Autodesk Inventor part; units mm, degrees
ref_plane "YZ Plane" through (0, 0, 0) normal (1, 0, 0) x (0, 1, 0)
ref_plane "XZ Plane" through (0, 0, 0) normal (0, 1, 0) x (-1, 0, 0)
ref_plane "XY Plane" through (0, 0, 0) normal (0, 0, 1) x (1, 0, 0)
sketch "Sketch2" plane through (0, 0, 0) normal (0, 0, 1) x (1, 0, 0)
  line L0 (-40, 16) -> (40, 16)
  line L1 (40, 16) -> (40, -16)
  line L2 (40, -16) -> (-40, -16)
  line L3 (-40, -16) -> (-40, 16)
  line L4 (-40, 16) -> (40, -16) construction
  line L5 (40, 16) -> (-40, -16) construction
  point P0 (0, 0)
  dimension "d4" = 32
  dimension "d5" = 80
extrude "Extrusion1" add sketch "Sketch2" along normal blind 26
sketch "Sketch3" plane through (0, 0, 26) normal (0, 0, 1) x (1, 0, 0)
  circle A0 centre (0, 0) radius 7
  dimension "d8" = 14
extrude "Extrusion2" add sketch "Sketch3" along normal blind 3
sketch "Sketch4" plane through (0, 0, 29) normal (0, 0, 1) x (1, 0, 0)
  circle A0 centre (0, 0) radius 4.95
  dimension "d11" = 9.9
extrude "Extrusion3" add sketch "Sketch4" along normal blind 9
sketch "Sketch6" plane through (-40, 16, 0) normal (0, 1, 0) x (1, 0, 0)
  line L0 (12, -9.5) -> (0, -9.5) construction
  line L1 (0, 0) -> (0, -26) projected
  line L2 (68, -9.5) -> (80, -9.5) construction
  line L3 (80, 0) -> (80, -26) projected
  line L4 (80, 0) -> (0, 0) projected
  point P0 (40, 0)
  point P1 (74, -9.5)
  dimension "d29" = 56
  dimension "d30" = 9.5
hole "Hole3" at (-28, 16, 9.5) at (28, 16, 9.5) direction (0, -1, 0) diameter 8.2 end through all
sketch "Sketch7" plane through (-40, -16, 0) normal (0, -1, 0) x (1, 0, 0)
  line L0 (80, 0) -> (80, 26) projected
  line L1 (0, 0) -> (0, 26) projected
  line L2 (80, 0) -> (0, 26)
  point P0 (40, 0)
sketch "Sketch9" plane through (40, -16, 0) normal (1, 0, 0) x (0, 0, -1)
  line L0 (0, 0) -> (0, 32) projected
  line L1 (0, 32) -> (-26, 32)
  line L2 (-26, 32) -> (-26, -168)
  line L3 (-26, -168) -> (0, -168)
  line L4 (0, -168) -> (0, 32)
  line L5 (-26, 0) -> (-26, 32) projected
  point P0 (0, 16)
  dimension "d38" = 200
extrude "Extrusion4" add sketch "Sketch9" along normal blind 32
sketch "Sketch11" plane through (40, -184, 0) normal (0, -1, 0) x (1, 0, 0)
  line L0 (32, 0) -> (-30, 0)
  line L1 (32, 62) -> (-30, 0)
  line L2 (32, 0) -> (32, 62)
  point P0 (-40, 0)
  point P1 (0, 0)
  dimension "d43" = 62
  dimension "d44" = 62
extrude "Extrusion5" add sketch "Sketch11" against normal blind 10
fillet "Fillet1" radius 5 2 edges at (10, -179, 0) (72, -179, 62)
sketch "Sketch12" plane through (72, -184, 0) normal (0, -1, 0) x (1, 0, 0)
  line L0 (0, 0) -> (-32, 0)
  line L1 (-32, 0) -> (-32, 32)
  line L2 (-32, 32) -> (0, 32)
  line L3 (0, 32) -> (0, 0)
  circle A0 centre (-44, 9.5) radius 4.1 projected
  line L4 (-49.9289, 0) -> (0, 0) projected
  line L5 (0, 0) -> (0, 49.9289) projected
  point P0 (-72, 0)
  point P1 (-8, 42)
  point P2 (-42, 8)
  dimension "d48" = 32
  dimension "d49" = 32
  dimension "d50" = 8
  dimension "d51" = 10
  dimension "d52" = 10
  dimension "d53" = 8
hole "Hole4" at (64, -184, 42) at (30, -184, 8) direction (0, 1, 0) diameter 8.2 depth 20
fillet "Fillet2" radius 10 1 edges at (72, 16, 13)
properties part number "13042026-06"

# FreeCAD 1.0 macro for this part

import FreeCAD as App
import Part
import Sketcher
from FreeCAD import Vector


def edges_at(feature, points):
    """Names of the edges that pass closest to the given points."""
    edges = feature.Shape.Edges
    near = lambda p: min(range(len(edges)), key=lambda i: edges[i].distToShape(Part.Vertex(*p))[0])
    return sorted({f"Edge{near(p) + 1}" for p in points})

doc = App.newDocument("Part")
body = doc.addObject("PartDesign::Body", "Body")

sketch1 = doc.addObject("Sketcher::SketchObject", "Sketch")
body.addObject(sketch1)
sketch1.AttachmentSupport = (doc.XY_Plane, [""])
sketch1.MapMode = "FlatFace"
sketch1.addGeometry(Part.LineSegment(Vector(40, 16, 0), Vector(-40, 16, 0)), False)
sketch1.addGeometry(Part.LineSegment(Vector(-40, 16, 0), Vector(-40, -16, 0)), False)
sketch1.addGeometry(Part.LineSegment(Vector(-40, -16, 0), Vector(40, -16, 0)), False)
sketch1.addGeometry(Part.LineSegment(Vector(40, -16, 0), Vector(40, 16, 0)), False)
sketch1.addConstraint(Sketcher.Constraint("Coincident", 0, 2, 1, 1))
sketch1.addConstraint(Sketcher.Constraint("Coincident", 1, 2, 2, 1))
sketch1.addConstraint(Sketcher.Constraint("Coincident", 2, 2, 3, 1))
sketch1.addConstraint(Sketcher.Constraint("Coincident", 3, 2, 0, 1))
sketch1.addConstraint(Sketcher.Constraint("Horizontal", 0))
sketch1.addConstraint(Sketcher.Constraint("Vertical", 1))
sketch1.addConstraint(Sketcher.Constraint("Horizontal", 2))
sketch1.addConstraint(Sketcher.Constraint("Vertical", 3))
sketch1.addConstraint(Sketcher.Constraint("Symmetric", 0, 2, 2, 2, -1, 1))
sketch1.addConstraint(Sketcher.Constraint("DistanceX", 0, 2, 0, 1, 80.0))
sketch1.addConstraint(Sketcher.Constraint("DistanceY", 1, 2, 1, 1, 32.0))
pad1 = doc.addObject("PartDesign::Pad", "Pad")
body.addObject(pad1)
pad1.Profile = sketch1
pad1.Length = 26

sketch2 = doc.addObject("Sketcher::SketchObject", "Sketch001")
body.addObject(sketch2)
sketch2.AttachmentSupport = (doc.XY_Plane, [""])
sketch2.MapMode = "FlatFace"
sketch2.AttachmentOffset = App.Placement(Vector(0, 0, 26), App.Rotation())
sketch2.addGeometry(Part.Circle(Vector(0, 0, 0), Vector(0, 0, 1), 7), False)
sketch2.addConstraint(Sketcher.Constraint("Coincident", 0, 3, -1, 1))
sketch2.addConstraint(Sketcher.Constraint("Diameter", 0, 14.0))
pad2 = doc.addObject("PartDesign::Pad", "Pad001")
body.addObject(pad2)
pad2.Profile = sketch2
pad2.Length = 3

sketch3 = doc.addObject("Sketcher::SketchObject", "Sketch002")
body.addObject(sketch3)
sketch3.AttachmentSupport = (doc.XY_Plane, [""])
sketch3.MapMode = "FlatFace"
sketch3.AttachmentOffset = App.Placement(Vector(0, 0, 29), App.Rotation())
sketch3.addGeometry(Part.Circle(Vector(0, 0, 0), Vector(0, 0, 1), 4.95), False)
sketch3.addConstraint(Sketcher.Constraint("Coincident", 0, 3, -1, 1))
sketch3.addConstraint(Sketcher.Constraint("Diameter", 0, 9.9))
pad3 = doc.addObject("PartDesign::Pad", "Pad002")
body.addObject(pad3)
pad3.Profile = sketch3
pad3.Length = 9

sketch4 = doc.addObject("Sketcher::SketchObject", "Sketch003")
body.addObject(sketch4)
sketch4.AttachmentSupport = (doc.XZ_Plane, [""])
sketch4.MapMode = "FlatFace"
sketch4.AttachmentOffset = App.Placement(Vector(0, 0, -16), App.Rotation())
sketch4.addGeometry(Part.Circle(Vector(-28, 9.5, 0), Vector(0, 0, 1), 4.1), False)
sketch4.addGeometry(Part.Circle(Vector(28, 9.5, 0), Vector(0, 0, 1), 4.1), False)
sketch4.addConstraint(Sketcher.Constraint("Equal", 0, 1))
sketch4.addConstraint(Sketcher.Constraint("Symmetric", 0, 3, 1, 3, -2))
sketch4.addConstraint(Sketcher.Constraint("Diameter", 0, 8.2))
sketch4.addConstraint(Sketcher.Constraint("DistanceX", 0, 3, -1, 1, 28.0))
sketch4.addConstraint(Sketcher.Constraint("DistanceY", -1, 1, 0, 3, 9.5))
doc.recompute()
hole = doc.addObject("PartDesign::Hole", "Hole")
body.addObject(hole)
hole.Profile = sketch4
hole.ThreadType = "None"
hole.Diameter = 8.2
hole.DepthType = "ThroughAll"
hole.Reversed = True

sketch5 = doc.addObject("Sketcher::SketchObject", "Sketch004")
body.addObject(sketch5)
sketch5.AttachmentSupport = (doc.YZ_Plane, [""])
sketch5.MapMode = "FlatFace"
sketch5.AttachmentOffset = App.Placement(Vector(0, 0, 40), App.Rotation())
sketch5.addGeometry(Part.LineSegment(Vector(-184, 0, 0), Vector(16, 0, 0)), False)
sketch5.addGeometry(Part.LineSegment(Vector(16, 0, 0), Vector(16, 26, 0)), False)
sketch5.addGeometry(Part.LineSegment(Vector(16, 26, 0), Vector(-184, 26, 0)), False)
sketch5.addGeometry(Part.LineSegment(Vector(-184, 26, 0), Vector(-184, 0, 0)), False)
sketch5.addConstraint(Sketcher.Constraint("Coincident", 0, 2, 1, 1))
sketch5.addConstraint(Sketcher.Constraint("Coincident", 1, 2, 2, 1))
sketch5.addConstraint(Sketcher.Constraint("Coincident", 2, 2, 3, 1))
sketch5.addConstraint(Sketcher.Constraint("Coincident", 3, 2, 0, 1))
sketch5.addConstraint(Sketcher.Constraint("Horizontal", 0))
sketch5.addConstraint(Sketcher.Constraint("Vertical", 1))
sketch5.addConstraint(Sketcher.Constraint("Horizontal", 2))
sketch5.addConstraint(Sketcher.Constraint("Vertical", 3))
sketch5.addConstraint(Sketcher.Constraint("PointOnObject", 0, 2, -1))
sketch5.addConstraint(Sketcher.Constraint("DistanceX", 0, 1, 0, 2, 200.0))
sketch5.addConstraint(Sketcher.Constraint("DistanceY", 1, 1, 1, 2, 26.0))
sketch5.addConstraint(Sketcher.Constraint("DistanceX", -1, 1, 0, 2, 16.0))
pad4 = doc.addObject("PartDesign::Pad", "Pad003")
body.addObject(pad4)
pad4.Profile = sketch5
pad4.Length = 32

sketch6 = doc.addObject("Sketcher::SketchObject", "Sketch005")
body.addObject(sketch6)
sketch6.AttachmentSupport = (doc.XZ_Plane, [""])
sketch6.MapMode = "FlatFace"
sketch6.AttachmentOffset = App.Placement(Vector(0, 0, 184), App.Rotation())
sketch6.addGeometry(Part.LineSegment(Vector(10, 0, 0), Vector(72, 0, 0)), False)
sketch6.addGeometry(Part.LineSegment(Vector(72, 0, 0), Vector(72, 62, 0)), False)
sketch6.addGeometry(Part.LineSegment(Vector(72, 62, 0), Vector(10, 0, 0)), False)
sketch6.addConstraint(Sketcher.Constraint("Coincident", 0, 2, 1, 1))
sketch6.addConstraint(Sketcher.Constraint("Coincident", 1, 2, 2, 1))
sketch6.addConstraint(Sketcher.Constraint("Coincident", 2, 2, 0, 1))
sketch6.addConstraint(Sketcher.Constraint("Horizontal", 0))
sketch6.addConstraint(Sketcher.Constraint("Vertical", 1))
sketch6.addConstraint(Sketcher.Constraint("PointOnObject", 0, 2, -1))
sketch6.addConstraint(Sketcher.Constraint("Equal", 0, 1))
sketch6.addConstraint(Sketcher.Constraint("DistanceX", 0, 1, 0, 2, 62.0))
sketch6.addConstraint(Sketcher.Constraint("DistanceX", -1, 1, 0, 2, 72.0))
pad5 = doc.addObject("PartDesign::Pad", "Pad004")
body.addObject(pad5)
pad5.Profile = sketch6
pad5.Length = 10
pad5.Reversed = True
doc.recompute()

fillet = doc.addObject("PartDesign::Fillet", "Fillet")
body.addObject(fillet)
fillet.Base = (pad5, edges_at(pad5, [(10, -179, 0), (72, -179, 62)]))
fillet.Radius = 5

sketch7 = doc.addObject("Sketcher::SketchObject", "Sketch006")
body.addObject(sketch7)
sketch7.AttachmentSupport = (doc.XZ_Plane, [""])
sketch7.MapMode = "FlatFace"
sketch7.AttachmentOffset = App.Placement(Vector(0, 0, 184), App.Rotation())
sketch7.addGeometry(Part.Circle(Vector(64, 42, 0), Vector(0, 0, 1), 4.1), False)
sketch7.addGeometry(Part.Circle(Vector(30, 8, 0), Vector(0, 0, 1), 4.1), False)
sketch7.addConstraint(Sketcher.Constraint("Equal", 0, 1))
sketch7.addConstraint(Sketcher.Constraint("Diameter", 0, 8.2))
sketch7.addConstraint(Sketcher.Constraint("DistanceX", -1, 1, 0, 3, 64.0))
sketch7.addConstraint(Sketcher.Constraint("DistanceY", -1, 1, 0, 3, 42.0))
sketch7.addConstraint(Sketcher.Constraint("DistanceX", -1, 1, 1, 3, 30.0))
sketch7.addConstraint(Sketcher.Constraint("DistanceY", -1, 1, 1, 3, 8.0))
doc.recompute()
hole2 = doc.addObject("PartDesign::Hole", "Hole001")
body.addObject(hole2)
hole2.Profile = sketch7
hole2.ThreadType = "None"
hole2.Diameter = 8.2
hole2.DepthType = "Dimension"
hole2.Depth = 20
hole2.DrillPoint = "Flat"
doc.recompute()

fillet2 = doc.addObject("PartDesign::Fillet", "Fillet001")
body.addObject(fillet2)
fillet2.Base = (hole2, edges_at(hole2, [(72, 16, 13)]))
fillet2.Radius = 10

doc.recompute()
